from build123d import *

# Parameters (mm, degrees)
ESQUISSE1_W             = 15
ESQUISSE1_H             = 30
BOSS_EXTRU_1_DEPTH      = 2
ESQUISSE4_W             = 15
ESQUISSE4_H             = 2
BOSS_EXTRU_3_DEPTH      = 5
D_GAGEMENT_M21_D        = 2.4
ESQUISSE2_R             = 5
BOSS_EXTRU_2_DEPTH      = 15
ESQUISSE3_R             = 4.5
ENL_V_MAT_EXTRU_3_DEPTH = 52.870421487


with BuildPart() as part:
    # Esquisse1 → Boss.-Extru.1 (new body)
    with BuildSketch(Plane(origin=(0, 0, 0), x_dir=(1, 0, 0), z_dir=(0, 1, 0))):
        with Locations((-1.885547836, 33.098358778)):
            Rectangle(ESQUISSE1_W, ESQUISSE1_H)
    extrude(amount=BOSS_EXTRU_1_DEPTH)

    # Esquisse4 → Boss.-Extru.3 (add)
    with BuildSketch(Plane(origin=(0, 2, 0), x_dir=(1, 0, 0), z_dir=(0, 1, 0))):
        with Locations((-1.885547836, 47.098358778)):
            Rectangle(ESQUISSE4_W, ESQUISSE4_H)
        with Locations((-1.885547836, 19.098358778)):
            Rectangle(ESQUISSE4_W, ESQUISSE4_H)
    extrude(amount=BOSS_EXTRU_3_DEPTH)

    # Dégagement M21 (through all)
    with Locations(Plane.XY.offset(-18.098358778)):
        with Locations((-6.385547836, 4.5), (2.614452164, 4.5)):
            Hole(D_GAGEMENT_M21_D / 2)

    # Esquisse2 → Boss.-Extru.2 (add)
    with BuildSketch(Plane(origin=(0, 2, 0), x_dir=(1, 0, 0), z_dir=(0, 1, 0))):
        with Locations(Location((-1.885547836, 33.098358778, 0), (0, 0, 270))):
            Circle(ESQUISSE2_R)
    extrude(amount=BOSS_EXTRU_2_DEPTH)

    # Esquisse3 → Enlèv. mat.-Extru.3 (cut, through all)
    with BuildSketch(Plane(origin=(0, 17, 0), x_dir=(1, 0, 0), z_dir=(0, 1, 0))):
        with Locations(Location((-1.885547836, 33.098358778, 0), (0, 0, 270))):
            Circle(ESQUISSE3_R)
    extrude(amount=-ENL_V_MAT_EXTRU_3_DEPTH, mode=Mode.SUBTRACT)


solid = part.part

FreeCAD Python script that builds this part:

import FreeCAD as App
import Part
import Sketcher
from FreeCAD import Vector

doc = App.newDocument("Part")
body = doc.addObject("PartDesign::Body", "Body")

# Sketch on XZ plane
sketch1 = body.newObject("Sketcher::SketchObject", "Sketch")
sketch1.AttachmentSupport = (doc.getObject("XZ_Plane"), [""])
sketch1.MapMode = "FlatFace"
sketch1.addGeometry([
    Part.LineSegment(Vector(-9.385548, -48.098359, 0), Vector(-9.385548, -18.098359, 0)),
    Part.LineSegment(Vector(-9.385548, -18.098359, 0), Vector(5.614452, -18.098359, 0)),
    Part.LineSegment(Vector(5.614452, -18.098359, 0), Vector(5.614452, -48.098359, 0)),
    Part.LineSegment(Vector(5.614452, -48.098359, 0), Vector(-9.385548, -48.098359, 0)),
], False)
sketch1.addConstraint([
    Sketcher.Constraint("Coincident", 0, 2, 1, 1),
    Sketcher.Constraint("Coincident", 1, 2, 2, 1),
    Sketcher.Constraint("Coincident", 2, 2, 3, 1),
    Sketcher.Constraint("Coincident", 3, 2, 0, 1),
    Sketcher.Constraint("Vertical", 0),
    Sketcher.Constraint("Horizontal", 1),
    Sketcher.Constraint("Vertical", 2),
    Sketcher.Constraint("Horizontal", 3),
    Sketcher.Constraint("DistanceX", 1, 1, 1, 2, 15.0),
    Sketcher.Constraint("DistanceY", 0, 1, 0, 2, 30.0),
    Sketcher.Constraint("DistanceY", 0, 2, -1, 1, 18.098359),
    Sketcher.Constraint("DistanceX", 0, 2, -1, 1, 9.385548),
])
pad1 = body.newObject("PartDesign::Pad", "Pad")
pad1.Profile = sketch1
pad1.Length = 2
pad1.Reversed = True

# Sketch on XZ plane
sketch2 = body.newObject("Sketcher::SketchObject", "Sketch001")
sketch2.AttachmentSupport = (doc.getObject("XZ_Plane"), [""])
sketch2.MapMode = "FlatFace"
sketch2.AttachmentOffset = App.Placement(Vector(0, 0, -2), App.Rotation())
sketch2.addGeometry([
    Part.LineSegment(Vector(-9.385548, -48.098359, 0), Vector(-9.385548, -46.098359, 0)),  # 0
    Part.LineSegment(Vector(-9.385548, -46.098359, 0), Vector(5.614452, -46.098359, 0)),  # 1
    Part.LineSegment(Vector(5.614452, -46.098359, 0), Vector(5.614452, -48.098359, 0)),  # 2
    Part.LineSegment(Vector(5.614452, -48.098359, 0), Vector(-9.385548, -48.098359, 0)),  # 3
    Part.LineSegment(Vector(-9.385548, -20.098359, 0), Vector(-9.385548, -18.098359, 0)),  # 4
    Part.LineSegment(Vector(-9.385548, -18.098359, 0), Vector(5.614452, -18.098359, 0)),  # 5
    Part.LineSegment(Vector(5.614452, -18.098359, 0), Vector(5.614452, -20.098359, 0)),  # 6
    Part.LineSegment(Vector(5.614452, -20.098359, 0), Vector(-9.385548, -20.098359, 0)),  # 7
], False)
sketch2.addConstraint([
    Sketcher.Constraint("Coincident", 0, 2, 1, 1),
    Sketcher.Constraint("Coincident", 1, 2, 2, 1),
    Sketcher.Constraint("Coincident", 2, 2, 3, 1),
    Sketcher.Constraint("Coincident", 3, 2, 0, 1),
    Sketcher.Constraint("Coincident", 4, 2, 5, 1),
    Sketcher.Constraint("Coincident", 5, 2, 6, 1),
    Sketcher.Constraint("Coincident", 6, 2, 7, 1),
    Sketcher.Constraint("Coincident", 7, 2, 4, 1),
    Sketcher.Constraint("Vertical", 0),
    Sketcher.Constraint("Horizontal", 1),
    Sketcher.Constraint("Vertical", 2),
    Sketcher.Constraint("Horizontal", 3),
    Sketcher.Constraint("Vertical", 4),
    Sketcher.Constraint("Horizontal", 5),
    Sketcher.Constraint("Vertical", 6),
    Sketcher.Constraint("Horizontal", 7),
    Sketcher.Constraint("Vertical", 3, 2, 4, 2),
    Sketcher.Constraint("Vertical", 2, 2, 5, 2),
    Sketcher.Constraint("Equal", 2, 4),
    Sketcher.Constraint("DistanceX", 1, 1, 1, 2, 15.0),
    Sketcher.Constraint("DistanceY", 0, 1, 0, 2, 2.0),
    Sketcher.Constraint("DistanceY", 0, 2, 4, 2, 28.0),
    Sketcher.Constraint("DistanceY", 0, 2, -1, 1, 46.098359),
    Sketcher.Constraint("DistanceX", 0, 2, -1, 1, 9.385548),
])
pad2 = body.newObject("PartDesign::Pad", "Pad001")
pad2.Profile = sketch2
pad2.Length = 5
pad2.Reversed = True

# Sketch on XY plane
sketch3 = body.newObject("Sketcher::SketchObject", "Sketch002")
sketch3.AttachmentSupport = (doc.getObject("XY_Plane"), [""])
sketch3.MapMode = "FlatFace"
sketch3.AttachmentOffset = App.Placement(Vector(0, 0, -18.098359), App.Rotation())
sketch3.addGeometry([
    Part.Circle(Vector(-6.385548, 4.5, 0), Vector(0, 0, 1), 1.2),
    Part.Circle(Vector(2.614452, 4.5, 0), Vector(0, 0, 1), 1.2),
], False)
sketch3.addConstraint([
    Sketcher.Constraint("Equal", 0, 1),
    Sketcher.Constraint("Horizontal", 0, 3, 1, 3),
    Sketcher.Constraint("Diameter", 0, 2.4),
    Sketcher.Constraint("DistanceX", 0, 3, 1, 3, 9.0),
    Sketcher.Constraint("DistanceY", -1, 1, 0, 3, 4.5),
    Sketcher.Constraint("DistanceX", 0, 3, -1, 1, 6.385548),
])
doc.recompute()
hole = body.newObject("PartDesign::Hole", "Hole")
hole.Profile = sketch3
hole.ThreadType = "None"
hole.Diameter = 2.4
hole.DepthType = "ThroughAll"

# Sketch on XZ plane
sketch4 = body.newObject("Sketcher::SketchObject", "Sketch003")
sketch4.AttachmentSupport = (doc.getObject("XZ_Plane"), [""])
sketch4.MapMode = "FlatFace"
sketch4.AttachmentOffset = App.Placement(Vector(0, 0, -2), App.Rotation())
sketch4.addGeometry(Part.Circle(Vector(-1.885548, -33.098359, 0), Vector(0, 0, 1), 5), False)
sketch4.addConstraint([
    Sketcher.Constraint("Diameter", 0, 10.0),
    Sketcher.Constraint("DistanceY", 0, 3, -1, 1, 33.098359),
    Sketcher.Constraint("DistanceX", 0, 3, -1, 1, 1.885548),
])
pad3 = body.newObject("PartDesign::Pad", "Pad002")
pad3.Profile = sketch4
pad3.Length = 15
pad3.Reversed = True

# Sketch on XZ plane
sketch5 = body.newObject("Sketcher::SketchObject", "Sketch004")
sketch5.AttachmentSupport = (doc.getObject("XZ_Plane"), [""])
sketch5.MapMode = "FlatFace"
sketch5.AttachmentOffset = App.Placement(Vector(0, 0, -17), App.Rotation())
sketch5.addGeometry(Part.Circle(Vector(-1.885548, -33.098359, 0), Vector(0, 0, 1), 4.5), False)
sketch5.addConstraint([
    Sketcher.Constraint("Diameter", 0, 9.0),
    Sketcher.Constraint("DistanceY", 0, 3, -1, 1, 33.098359),
    Sketcher.Constraint("DistanceX", 0, 3, -1, 1, 1.885548),
])
pocket1 = body.newObject("PartDesign::Pocket", "Pocket")
pocket1.Profile = sketch5
pocket1.Type = "ThroughAll"
pocket1.Reversed = True

doc.recompute()
